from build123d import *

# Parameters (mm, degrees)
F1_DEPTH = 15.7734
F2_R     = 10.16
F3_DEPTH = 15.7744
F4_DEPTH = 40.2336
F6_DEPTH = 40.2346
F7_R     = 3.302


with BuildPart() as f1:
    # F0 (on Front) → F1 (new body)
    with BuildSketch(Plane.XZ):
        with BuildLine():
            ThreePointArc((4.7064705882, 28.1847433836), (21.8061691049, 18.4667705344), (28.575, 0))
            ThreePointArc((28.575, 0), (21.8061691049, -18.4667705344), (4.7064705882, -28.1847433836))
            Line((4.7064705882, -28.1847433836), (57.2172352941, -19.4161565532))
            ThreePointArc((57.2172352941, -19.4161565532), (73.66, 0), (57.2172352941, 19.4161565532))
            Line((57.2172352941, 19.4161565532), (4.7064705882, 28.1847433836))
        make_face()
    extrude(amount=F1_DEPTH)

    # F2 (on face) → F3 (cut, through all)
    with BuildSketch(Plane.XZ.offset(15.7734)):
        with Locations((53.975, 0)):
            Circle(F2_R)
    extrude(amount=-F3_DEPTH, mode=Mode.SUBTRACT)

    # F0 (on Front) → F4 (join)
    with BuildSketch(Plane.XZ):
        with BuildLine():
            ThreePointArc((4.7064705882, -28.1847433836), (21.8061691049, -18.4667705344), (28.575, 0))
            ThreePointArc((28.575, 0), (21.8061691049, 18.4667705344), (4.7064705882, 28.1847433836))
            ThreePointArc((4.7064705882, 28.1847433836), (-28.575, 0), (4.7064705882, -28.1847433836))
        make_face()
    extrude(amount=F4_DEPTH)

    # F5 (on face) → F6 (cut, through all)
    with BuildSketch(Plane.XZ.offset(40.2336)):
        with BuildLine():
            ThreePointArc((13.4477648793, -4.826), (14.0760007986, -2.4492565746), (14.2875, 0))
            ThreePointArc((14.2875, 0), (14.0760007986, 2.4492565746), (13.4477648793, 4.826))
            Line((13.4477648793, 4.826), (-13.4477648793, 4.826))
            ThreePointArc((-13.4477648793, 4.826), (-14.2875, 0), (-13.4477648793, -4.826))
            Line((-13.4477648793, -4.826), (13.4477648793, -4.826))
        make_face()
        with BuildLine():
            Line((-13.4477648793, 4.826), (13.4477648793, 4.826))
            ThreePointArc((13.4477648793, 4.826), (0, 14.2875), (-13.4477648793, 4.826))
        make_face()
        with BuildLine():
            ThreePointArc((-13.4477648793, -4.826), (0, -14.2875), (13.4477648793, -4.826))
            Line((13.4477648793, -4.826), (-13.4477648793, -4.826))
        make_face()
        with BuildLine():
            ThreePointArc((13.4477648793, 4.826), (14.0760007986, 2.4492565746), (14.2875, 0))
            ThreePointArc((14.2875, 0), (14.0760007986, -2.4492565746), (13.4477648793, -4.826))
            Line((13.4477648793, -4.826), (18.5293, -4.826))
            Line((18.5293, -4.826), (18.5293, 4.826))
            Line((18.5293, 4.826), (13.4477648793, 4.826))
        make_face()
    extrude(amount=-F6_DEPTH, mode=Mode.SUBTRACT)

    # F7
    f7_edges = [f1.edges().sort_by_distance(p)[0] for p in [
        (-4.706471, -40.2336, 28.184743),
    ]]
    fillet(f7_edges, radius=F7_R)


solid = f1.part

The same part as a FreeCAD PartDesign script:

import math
import FreeCAD as App
import Part
import Sketcher
from FreeCAD import Vector
Q = App.Units.Quantity


def edges_at(feature, points):
    """Names of the edges that pass closest to the given points."""
    edges = feature.Shape.Edges
    near = lambda p: min(range(len(edges)), key=lambda i: edges[i].distToShape(Part.Vertex(*p))[0])
    return sorted({f"Edge{near(p) + 1}" for p in points})

doc = App.newDocument("Part")
body = doc.addObject("PartDesign::Body", "Body")

# Sketch on XZ plane
sketch1 = doc.addObject("Sketcher::SketchObject", "Sketch")
body.addObject(sketch1)
sketch1.AttachmentSupport = (doc.XZ_Plane, [""])
sketch1.MapMode = "FlatFace"
sketch1.addGeometry([
    Part.ArcOfCircle(Part.Circle(Vector(0, 0, 0), Vector(0, 0, 1), 29), math.radians(0), math.radians(81)),  # 0
    Part.ArcOfCircle(Part.Circle(Vector(0, 0, 0), Vector(0, 0, 1), 29), math.radians(-81), math.radians(0)),  # 1
    Part.LineSegment(Vector(5, -28, 0), Vector(57, -19, 0)),  # 2
    Part.ArcOfCircle(Part.Circle(Vector(54, 0, 0), Vector(0, 0, 1), 20), math.radians(-81), math.radians(81)),  # 3
    Part.LineSegment(Vector(57, 19, 0), Vector(5, 28, 0)),  # 4
], False)
sketch1.addConstraint([
    Sketcher.Constraint("Tangent", 0, 1, 1, 2),
    Sketcher.Constraint("Tangent", 1, 1, 2, 1),
    Sketcher.Constraint("Tangent", 2, 2, 3, 1),
    Sketcher.Constraint("Tangent", 3, 2, 4, 1),
    Sketcher.Constraint("Tangent", 4, 2, 0, 2),
    Sketcher.Constraint("Coincident", 0, 3, -1, 1),
    Sketcher.Constraint("Equal", 0, 1),
    Sketcher.Constraint("PointOnObject", 3, 3, -1),
    Sketcher.Constraint("PointOnObject", 0, 1, -1),
    Sketcher.Constraint("Radius", 0, Q("1.125 in")),
    Sketcher.Constraint("Radius", 3, Q("0.775 in")),
    Sketcher.Constraint("DistanceX", 0, 1, 3, 3, Q("1 in")),
])
pad1 = doc.addObject("PartDesign::Pad", "Pad")
body.addObject(pad1)
pad1.Profile = sketch1
pad1.Length = Q("0.621 in")

# Sketch on XZ plane
sketch2 = doc.addObject("Sketcher::SketchObject", "Sketch001")
body.addObject(sketch2)
sketch2.AttachmentSupport = (doc.XZ_Plane, [""])
sketch2.MapMode = "FlatFace"
sketch2.AttachmentOffset = App.Placement(Vector(0, 0, 0.621 * 25.4), App.Rotation())
sketch2.addGeometry(Part.Circle(Vector(54, 0, 0), Vector(0, 0, 1), 10), False)
sketch2.addConstraint([
    Sketcher.Constraint("PointOnObject", 0, 3, -1),
    Sketcher.Constraint("Diameter", 0, Q("0.8 in")),
    Sketcher.Constraint("DistanceX", -1, 1, 0, 3, Q("2.125 in")),
])
pocket1 = doc.addObject("PartDesign::Pocket", "Pocket")
body.addObject(pocket1)
pocket1.Profile = sketch2
pocket1.Type = "ThroughAll"

# Sketch on XZ plane
sketch3 = doc.addObject("Sketcher::SketchObject", "Sketch002")
body.addObject(sketch3)
sketch3.AttachmentSupport = (doc.XZ_Plane, [""])
sketch3.MapMode = "FlatFace"
sketch3.addGeometry([
    Part.ArcOfCircle(Part.Circle(Vector(0, 0, 0), Vector(0, 0, 1), 29), math.radians(-81), math.radians(0)),
    Part.ArcOfCircle(Part.Circle(Vector(0, 0, 0), Vector(0, 0, 1), 29), math.radians(0), math.radians(81)),
    Part.ArcOfCircle(Part.Circle(Vector(0, 0, 0), Vector(0, 0, 1), 29), math.radians(81), math.radians(279)),
], False)
sketch3.addConstraint([
    Sketcher.Constraint("Tangent", 0, 2, 1, 1),
    Sketcher.Constraint("Tangent", 1, 2, 2, 1),
    Sketcher.Constraint("Tangent", 2, 2, 0, 1),
    Sketcher.Constraint("Coincident", 0, 3, -1, 1),
    Sketcher.Constraint("PointOnObject", 0, 2, -1),
    Sketcher.Constraint("Vertical", 1, 2, 2, 2),
    Sketcher.Constraint("Radius", 0, Q("1.125 in")),
    Sketcher.Constraint("DistanceX", -1, 1, 1, 2, Q("4.706471 mm")),
])
pad2 = doc.addObject("PartDesign::Pad", "Pad001")
body.addObject(pad2)
pad2.Profile = sketch3
pad2.Length = Q("1.584 in")

# Sketch on XZ plane
sketch4 = doc.addObject("Sketcher::SketchObject", "Sketch003")
body.addObject(sketch4)
sketch4.AttachmentSupport = (doc.XZ_Plane, [""])
sketch4.MapMode = "FlatFace"
sketch4.AttachmentOffset = App.Placement(Vector(0, 0, 1.584 * 25.4), App.Rotation())
sketch4.addGeometry([
    Part.ArcOfCircle(Part.Circle(Vector(0, 0, 0), Vector(0, 0, 1), 14), math.radians(20), math.radians(160)),  # 0
    Part.ArcOfCircle(Part.Circle(Vector(0, 0, 0), Vector(0, 0, 1), 14), math.radians(160), math.radians(200)),  # 1
    Part.ArcOfCircle(Part.Circle(Vector(0, 0, 0), Vector(0, 0, 1), 14), math.radians(-160), math.radians(-20)),  # 2
    Part.LineSegment(Vector(13, -5, 0), Vector(19, -5, 0)),  # 3
    Part.LineSegment(Vector(19, -5, 0), Vector(19, 5, 0)),  # 4
    Part.LineSegment(Vector(19, 5, 0), Vector(13, 5, 0)),  # 5
], False)
sketch4.addConstraint([
    Sketcher.Constraint("Tangent", 0, 2, 1, 1),
    Sketcher.Constraint("Tangent", 1, 2, 2, 1),
    Sketcher.Constraint("Coincident", 2, 2, 3, 1),
    Sketcher.Constraint("Coincident", 3, 2, 4, 1),
    Sketcher.Constraint("Coincident", 4, 2, 5, 1),
    Sketcher.Constraint("Coincident", 5, 2, 0, 1),
    Sketcher.Constraint("Horizontal", 3),
    Sketcher.Constraint("Vertical", 4),
    Sketcher.Constraint("Horizontal", 5),
    Sketcher.Constraint("Coincident", 0, 3, -1, 1),
    Sketcher.Constraint("Coincident", 2, 3, -1, 1),
    Sketcher.Constraint("Horizontal", 1, 2, 2, 2),
    Sketcher.Constraint("Horizontal", 0, 2, 4, 2),
    Sketcher.Constraint("Vertical", 0, 2, 1, 2),
    Sketcher.Constraint("Radius", 0, Q("0.5625 in")),
    Sketcher.Constraint("DistanceY", 4, 1, 4, 2, Q("0.38 in")),
    Sketcher.Constraint("DistanceX", -1, 1, 3, 2, Q("0.7295 in")),
])
pocket2 = doc.addObject("PartDesign::Pocket", "Pocket001")
body.addObject(pocket2)
pocket2.Profile = sketch4
pocket2.Type = "ThroughAll"
doc.recompute()

fillet = doc.addObject("PartDesign::Fillet", "Fillet")
body.addObject(fillet)
fillet.Base = (pocket2, edges_at(pocket2, [(-28.575, -40.234, 0)]))
fillet.Radius = Q("0.13 in")

doc.recompute()
